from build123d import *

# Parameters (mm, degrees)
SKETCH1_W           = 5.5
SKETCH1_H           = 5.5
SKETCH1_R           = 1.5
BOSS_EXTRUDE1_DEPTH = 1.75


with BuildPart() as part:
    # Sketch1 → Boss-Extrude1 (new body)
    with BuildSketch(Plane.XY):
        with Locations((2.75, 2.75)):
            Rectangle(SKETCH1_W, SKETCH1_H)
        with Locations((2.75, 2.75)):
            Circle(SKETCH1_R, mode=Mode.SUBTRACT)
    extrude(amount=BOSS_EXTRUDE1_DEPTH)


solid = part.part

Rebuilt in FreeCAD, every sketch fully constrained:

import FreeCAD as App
import Part
import Sketcher


def add_polygon(sketch, points):
    """Adds a closed chain of lines whose ends are joined by coincident constraints."""
    first, n = sketch.GeometryCount, len(points)
    for a, b in zip(points, points[1:] + points[:1]):
        sketch.addGeometry(Part.LineSegment(App.Vector(*a, 0), App.Vector(*b, 0)), False)
    for i in range(n):
        sketch.addConstraint(Sketcher.Constraint("Coincident", first + i, 2, first + (i + 1) % n, 1))

doc = App.newDocument("Part")
params = doc.addObject("Spreadsheet::Sheet", "Params")
for row, (alias, value) in enumerate([
    ("sketch1_diameter", "3 mm"),
    ("sketch1_width", "5.5 mm"),
    ("pad1_length", "1.75 mm"),
], start=1):
    params.set(f"A{row}", alias)
    params.set(f"B{row}", "=" + value)
    params.setAlias(f"B{row}", alias)

body = doc.addObject("PartDesign::Body", "Body")

# Sketch on XY plane
sketch1 = body.newObject("Sketcher::SketchObject", "Sketch")
sketch1.AttachmentSupport = (doc.getObject("XY_Plane"), [""])
sketch1.MapMode = "FlatFace"
add_polygon(sketch1, [(0, 5.5), (0, 0), (5.5, 0), (5.5, 5.5)])  # lines 0-3
sketch1.addGeometry(Part.Circle(App.Vector(2.8, 2.8, 0), App.Vector(0, 0, 1), 1.5), False)  # 4
sketch1.addConstraint(Sketcher.Constraint("Vertical", 0))
sketch1.addConstraint(Sketcher.Constraint("Horizontal", 1))
sketch1.addConstraint(Sketcher.Constraint("Vertical", 2))
sketch1.addConstraint(Sketcher.Constraint("Horizontal", 3))
sketch1.addConstraint(Sketcher.Constraint("Coincident", 0, 2, -1, 1))
sketch1.addConstraint(Sketcher.Constraint("Equal", 3, 0))
sketch1.addConstraint(Sketcher.Constraint("Diameter", 4, 3.0))
sketch1.addConstraint(Sketcher.Constraint("DistanceX", 1, 1, 1, 2, 5.5))
sketch1.addConstraint(Sketcher.Constraint("DistanceX", -1, 1, 4, 3, 2.75))
sketch1.addConstraint(Sketcher.Constraint("DistanceY", -1, 1, 4, 3, 2.75))
sketch1.setExpression("Constraints[10]", "Params.sketch1_diameter")
sketch1.setExpression("Constraints[11]", "Params.sketch1_width")
pad1 = body.newObject("PartDesign::Pad", "Pad")
pad1.Profile = sketch1
pad1.setExpression("Length", "Params.pad1_length")

doc.recompute()
